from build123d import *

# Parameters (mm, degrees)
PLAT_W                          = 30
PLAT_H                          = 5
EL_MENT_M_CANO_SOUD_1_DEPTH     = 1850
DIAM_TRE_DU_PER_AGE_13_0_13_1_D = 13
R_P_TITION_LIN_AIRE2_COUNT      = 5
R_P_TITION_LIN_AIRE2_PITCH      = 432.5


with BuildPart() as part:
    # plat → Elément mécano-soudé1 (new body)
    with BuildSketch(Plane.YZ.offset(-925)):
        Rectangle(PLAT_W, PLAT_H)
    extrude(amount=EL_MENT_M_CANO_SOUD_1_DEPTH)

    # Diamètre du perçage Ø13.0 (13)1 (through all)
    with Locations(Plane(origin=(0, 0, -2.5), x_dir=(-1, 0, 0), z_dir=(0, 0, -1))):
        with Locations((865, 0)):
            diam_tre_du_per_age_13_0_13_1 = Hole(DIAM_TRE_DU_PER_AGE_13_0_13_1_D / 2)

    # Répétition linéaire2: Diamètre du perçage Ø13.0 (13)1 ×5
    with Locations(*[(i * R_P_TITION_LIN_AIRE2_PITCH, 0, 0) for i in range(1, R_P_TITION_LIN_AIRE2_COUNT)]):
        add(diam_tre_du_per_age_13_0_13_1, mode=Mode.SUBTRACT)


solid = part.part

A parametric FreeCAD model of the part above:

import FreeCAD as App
import Part
import Sketcher
from FreeCAD import Vector

doc = App.newDocument("Part")
body = doc.addObject("PartDesign::Body", "Body")

# Sketch on YZ plane
sketch1 = body.newObject("Sketcher::SketchObject", "Sketch")
sketch1.AttachmentSupport = (doc.getObject("YZ_Plane"), [""])
sketch1.MapMode = "FlatFace"
sketch1.AttachmentOffset = App.Placement(Vector(0, 0, -925), App.Rotation())
sketch1.addGeometry(Part.LineSegment(Vector(-15, 2, 0), Vector(-15, -2, 0)), False)
sketch1.addGeometry(Part.LineSegment(Vector(-15, -2, 0), Vector(15, -2, 0)), False)
sketch1.addGeometry(Part.LineSegment(Vector(15, -2, 0), Vector(15, 2, 0)), False)
sketch1.addGeometry(Part.LineSegment(Vector(15, 2, 0), Vector(-15, 2, 0)), False)
sketch1.addConstraint(Sketcher.Constraint("Coincident", 0, 2, 1, 1))
sketch1.addConstraint(Sketcher.Constraint("Coincident", 1, 2, 2, 1))
sketch1.addConstraint(Sketcher.Constraint("Coincident", 2, 2, 3, 1))
sketch1.addConstraint(Sketcher.Constraint("Coincident", 3, 2, 0, 1))
sketch1.addConstraint(Sketcher.Constraint("Vertical", 0))
sketch1.addConstraint(Sketcher.Constraint("Horizontal", 1))
sketch1.addConstraint(Sketcher.Constraint("Vertical", 2))
sketch1.addConstraint(Sketcher.Constraint("Horizontal", 3))
sketch1.addConstraint(Sketcher.Constraint("Symmetric", 0, 2, 2, 2, -1, 1))
sketch1.addConstraint(Sketcher.Constraint("DistanceX", 1, 1, 1, 2, 30.0))
sketch1.addConstraint(Sketcher.Constraint("DistanceY", 0, 2, 0, 1, 5.0))
pad1 = body.newObject("PartDesign::Pad", "Pad")
pad1.Profile = sketch1
pad1.Length = 1850

# Sketch on XY plane
sketch2 = body.newObject("Sketcher::SketchObject", "Sketch001")
sketch2.AttachmentSupport = (doc.getObject("XY_Plane"), [""])
sketch2.MapMode = "FlatFace"
sketch2.AttachmentOffset = App.Placement(Vector(0, 0, -2.5), App.Rotation())
sketch2.addGeometry(Part.Circle(Vector(-865, 0, 0), Vector(0, 0, 1), 6), False)
sketch2.addConstraint(Sketcher.Constraint("PointOnObject", 0, 3, -1))
sketch2.addConstraint(Sketcher.Constraint("Diameter", 0, 13.0))
sketch2.addConstraint(Sketcher.Constraint("DistanceX", 0, 3, -1, 1, 865.0))
doc.recompute()
hole = body.newObject("PartDesign::Hole", "Hole")
hole.Profile = sketch2
hole.ThreadType = "None"
hole.Diameter = 13
hole.DepthType = "ThroughAll"
hole.Reversed = True
doc.recompute()

linearpattern = body.newObject("PartDesign::LinearPattern", "LinearPattern")
linearpattern.Originals = [hole]
linearpattern.Direction = (doc.getObject("X_Axis"), [""])
linearpattern.Mode = "offset"
linearpattern.Offset = 432.5
linearpattern.Occurrences = 5
body.Tip = linearpattern

doc.recompute()
